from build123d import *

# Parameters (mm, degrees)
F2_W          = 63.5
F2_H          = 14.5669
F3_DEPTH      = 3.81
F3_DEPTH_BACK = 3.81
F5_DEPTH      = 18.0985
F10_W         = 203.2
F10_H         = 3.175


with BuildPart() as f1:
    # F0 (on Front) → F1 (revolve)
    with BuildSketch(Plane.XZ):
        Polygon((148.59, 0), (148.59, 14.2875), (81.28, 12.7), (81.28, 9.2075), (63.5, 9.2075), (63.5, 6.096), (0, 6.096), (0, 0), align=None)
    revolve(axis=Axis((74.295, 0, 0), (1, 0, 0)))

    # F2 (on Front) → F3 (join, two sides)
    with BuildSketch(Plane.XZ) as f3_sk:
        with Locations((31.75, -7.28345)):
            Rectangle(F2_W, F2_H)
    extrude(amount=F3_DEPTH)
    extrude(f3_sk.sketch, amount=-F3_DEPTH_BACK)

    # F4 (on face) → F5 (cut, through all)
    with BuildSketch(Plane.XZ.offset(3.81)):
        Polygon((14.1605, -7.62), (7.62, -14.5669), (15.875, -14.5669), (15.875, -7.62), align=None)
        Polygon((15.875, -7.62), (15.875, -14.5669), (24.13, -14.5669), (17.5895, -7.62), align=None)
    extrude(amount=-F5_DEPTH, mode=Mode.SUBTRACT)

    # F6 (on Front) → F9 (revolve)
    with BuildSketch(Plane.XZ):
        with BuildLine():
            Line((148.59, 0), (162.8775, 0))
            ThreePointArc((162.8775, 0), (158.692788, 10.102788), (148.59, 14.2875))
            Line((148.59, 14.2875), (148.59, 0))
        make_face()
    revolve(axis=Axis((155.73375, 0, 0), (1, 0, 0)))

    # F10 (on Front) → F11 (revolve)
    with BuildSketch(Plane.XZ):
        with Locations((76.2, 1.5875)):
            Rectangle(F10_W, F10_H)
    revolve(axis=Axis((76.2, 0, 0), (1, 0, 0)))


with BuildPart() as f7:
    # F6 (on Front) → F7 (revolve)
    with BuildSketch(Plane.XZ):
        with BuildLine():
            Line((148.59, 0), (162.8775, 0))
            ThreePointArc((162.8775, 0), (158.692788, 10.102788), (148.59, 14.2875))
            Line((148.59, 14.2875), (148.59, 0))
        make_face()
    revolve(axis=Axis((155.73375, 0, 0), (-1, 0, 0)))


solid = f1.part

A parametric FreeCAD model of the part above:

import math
import FreeCAD as App
import Part
import Sketcher

V = App.Vector
Q = App.Units.Quantity

doc = App.newDocument("Part")
body = doc.addObject("PartDesign::Body", "Body")

# Sketch on XZ plane
sketch1 = body.newObject("Sketcher::SketchObject", "Sketch")
sketch1.AttachmentSupport = (doc.getObject("XZ_Plane"), [""])
sketch1.MapMode = "FlatFace"
sketch1.addGeometry([
    Part.LineSegment(V(148.59, 0, 0), V(148.59, 14.2875, 0)),  # 0
    Part.LineSegment(V(148.59, 14.2875, 0), V(81.28, 12.7, 0)),  # 1
    Part.LineSegment(V(81.28, 12.7, 0), V(81.28, 9.2075, 0)),  # 2
    Part.LineSegment(V(81.28, 9.2075, 0), V(63.5, 9.2075, 0)),  # 3
    Part.LineSegment(V(63.5, 9.2075, 0), V(63.5, 6.096, 0)),  # 4
    Part.LineSegment(V(63.5, 6.096, 0), V(0, 6.096, 0)),  # 5
    Part.LineSegment(V(0, 6.096, 0), V(0, 0, 0)),  # 6
    Part.LineSegment(V(0, 0, 0), V(148.59, 0, 0)),  # 7
], False)
sketch1.addConstraint([
    Sketcher.Constraint("Coincident", 0, 2, 1, 1),
    Sketcher.Constraint("Coincident", 1, 2, 2, 1),
    Sketcher.Constraint("Coincident", 2, 2, 3, 1),
    Sketcher.Constraint("Coincident", 3, 2, 4, 1),
    Sketcher.Constraint("Coincident", 4, 2, 5, 1),
    Sketcher.Constraint("Coincident", 5, 2, 6, 1),
    Sketcher.Constraint("Coincident", 6, 2, 7, 1),
    Sketcher.Constraint("Coincident", 7, 2, 0, 1),
    Sketcher.Constraint("Vertical", 0),
    Sketcher.Constraint("Vertical", 2),
    Sketcher.Constraint("Horizontal", 3),
    Sketcher.Constraint("Vertical", 4),
    Sketcher.Constraint("Horizontal", 5),
    Sketcher.Constraint("Vertical", 6),
    Sketcher.Constraint("Horizontal", 7),
    Sketcher.Constraint("Coincident", 6, 2, -1, 1),
    Sketcher.Constraint("DistanceX", 3, 2, 3, 1, Q("0.7 in")),
    Sketcher.Constraint("DistanceX", 5, 2, 5, 1, Q("2.5 in")),
    Sketcher.Constraint("DistanceX", 7, 1, 7, 2, Q("5.85 in")),
    Sketcher.Constraint("DistanceY", 6, 2, 6, 1, Q("0.24 in")),
    Sketcher.Constraint("DistanceY", -1, 1, 1, 2, Q("0.5 in")),
    Sketcher.Constraint("DistanceY", 2, 2, 0, 2, Q("0.2 in")),
    Sketcher.Constraint("DistanceY", 0, 1, 0, 2, Q("0.5625 in")),
])
revolution = body.newObject("PartDesign::Revolution", "Revolution")
revolution.Profile = sketch1
revolution.ReferenceAxis = (sketch1, ["H_Axis"])
revolution.Angle = 360

# Sketch on XZ plane
sketch2 = body.newObject("Sketcher::SketchObject", "Sketch001")
sketch2.AttachmentSupport = (doc.getObject("XZ_Plane"), [""])
sketch2.MapMode = "FlatFace"
sketch2.addGeometry([
    Part.LineSegment(V(0, 0, 0), V(0, -14.5669, 0)),
    Part.LineSegment(V(0, -14.5669, 0), V(63.5, -14.5669, 0)),
    Part.LineSegment(V(63.5, -14.5669, 0), V(63.5, 0, 0)),
    Part.LineSegment(V(63.5, 0, 0), V(0, 0, 0)),
], False)
sketch2.addConstraint([
    Sketcher.Constraint("Coincident", 0, 2, 1, 1),
    Sketcher.Constraint("Coincident", 1, 2, 2, 1),
    Sketcher.Constraint("Coincident", 2, 2, 3, 1),
    Sketcher.Constraint("Coincident", 3, 2, 0, 1),
    Sketcher.Constraint("Vertical", 0),
    Sketcher.Constraint("Horizontal", 1),
    Sketcher.Constraint("Vertical", 2),
    Sketcher.Constraint("Horizontal", 3),
    Sketcher.Constraint("Coincident", 3, 2, -1, 1),
    Sketcher.Constraint("DistanceX", 1, 1, 1, 2, Q("2.5 in")),
    Sketcher.Constraint("DistanceY", 0, 2, 0, 1, Q("0.5735 in")),
])
pad1 = body.newObject("PartDesign::Pad", "Pad")
pad1.Profile = sketch2
pad1.Type = "TwoLengths"
pad1.Length = Q("0.15 in")
pad1.Length2 = Q("0.15 in")

# Sketch on XZ plane
sketch3 = body.newObject("Sketcher::SketchObject", "Sketch002")
sketch3.AttachmentSupport = (doc.getObject("XZ_Plane"), [""])
sketch3.MapMode = "FlatFace"
sketch3.AttachmentOffset = App.Placement(V(0, 0, 0.15 * 25.4), App.Rotation())
sketch3.addGeometry([
    Part.LineSegment(V(14.1605, -7.62, 0), V(7.62, -14.5669, 0)),
    Part.LineSegment(V(7.62, -14.5669, 0), V(24.13, -14.5669, 0)),
    Part.LineSegment(V(24.13, -14.5669, 0), V(17.5895, -7.62, 0)),
    Part.LineSegment(V(17.5895, -7.62, 0), V(14.1605, -7.62, 0)),
], False)
sketch3.addConstraint([
    Sketcher.Constraint("Coincident", 0, 2, 1, 1),
    Sketcher.Constraint("Coincident", 1, 2, 2, 1),
    Sketcher.Constraint("Coincident", 2, 2, 3, 1),
    Sketcher.Constraint("Coincident", 3, 2, 0, 1),
    Sketcher.Constraint("Horizontal", 1),
    Sketcher.Constraint("Horizontal", 3),
    Sketcher.Constraint("Equal", 0, 2),
    Sketcher.Constraint("DistanceX", 1, 1, 1, 2, Q("0.65 in")),
    Sketcher.Constraint("DistanceX", -1, 1, 0, 2, Q("0.3 in")),
    Sketcher.Constraint("DistanceY", 2, 2, -1, 1, Q("0.3 in")),
    Sketcher.Constraint("DistanceX", 3, 2, 3, 1, Q("0.135 in")),
    Sketcher.Constraint("DistanceY", 0, 2, -1, 1, Q("0.5735 in")),
])
pocket1 = body.newObject("PartDesign::Pocket", "Pocket")
pocket1.Profile = sketch3
pocket1.Type = "ThroughAll"

# Sketch on XZ plane
sketch4 = body.newObject("Sketcher::SketchObject", "Sketch003")
sketch4.AttachmentSupport = (doc.getObject("XZ_Plane"), [""])
sketch4.MapMode = "FlatFace"
sketch4.addGeometry([
    Part.LineSegment(V(148.59, 0, 0), V(162.8775, 0, 0)),
    Part.ArcOfCircle(Part.Circle(V(148.59, 0, 0), V(0, 0, 1), 14.2875), math.radians(0.000002), math.radians(89.999998)),
    Part.LineSegment(V(148.59, 14.2875, 0), V(148.59, 0, 0)),
], False)
sketch4.addConstraint([
    Sketcher.Constraint("Coincident", 0, 2, 1, 1),
    Sketcher.Constraint("Coincident", 1, 2, 2, 1),
    Sketcher.Constraint("Coincident", 2, 2, 0, 1),
    Sketcher.Constraint("Horizontal", 0),
    Sketcher.Constraint("Vertical", 2),
    Sketcher.Constraint("Coincident", 2, 2, 1, 3),
    Sketcher.Constraint("PointOnObject", 1, 3, -1),
    Sketcher.Constraint("Radius", 1, Q("0.5625 in")),
    Sketcher.Constraint("DistanceX", -1, 1, 1, 3, Q("5.85 in")),
])
revolution2 = body.newObject("PartDesign::Revolution", "Revolution001")
revolution2.Profile = sketch4
revolution2.ReferenceAxis = (sketch4, ["H_Axis"])
revolution2.Angle = 360

# Sketch on XZ plane
sketch5 = body.newObject("Sketcher::SketchObject", "Sketch004")
sketch5.AttachmentSupport = (doc.getObject("XZ_Plane"), [""])
sketch5.MapMode = "FlatFace"
sketch5.addGeometry([
    Part.LineSegment(V(-25.4, 3.175, 0), V(-25.4, 0, 0)),
    Part.LineSegment(V(-25.4, 0, 0), V(177.8, 0, 0)),
    Part.LineSegment(V(177.8, 0, 0), V(177.8, 3.175, 0)),
    Part.LineSegment(V(177.8, 3.175, 0), V(-25.4, 3.175, 0)),
], False)
sketch5.addConstraint([
    Sketcher.Constraint("Coincident", 0, 2, 1, 1),
    Sketcher.Constraint("Coincident", 1, 2, 2, 1),
    Sketcher.Constraint("Coincident", 2, 2, 3, 1),
    Sketcher.Constraint("Coincident", 3, 2, 0, 1),
    Sketcher.Constraint("Vertical", 0),
    Sketcher.Constraint("Horizontal", 1),
    Sketcher.Constraint("Vertical", 2),
    Sketcher.Constraint("Horizontal", 3),
    Sketcher.Constraint("PointOnObject", 0, 2, -1),
    Sketcher.Constraint("DistanceX", 1, 1, 1, 2, Q("8 in")),
    Sketcher.Constraint("DistanceX", 0, 2, -1, 1, Q("1 in")),
    Sketcher.Constraint("DistanceY", 0, 2, 0, 1, Q("0.125 in")),
])
revolution3 = body.newObject("PartDesign::Revolution", "Revolution002")
revolution3.Profile = sketch5
revolution3.ReferenceAxis = (sketch5, ["H_Axis"])
revolution3.Angle = 360
body2 = doc.addObject("PartDesign::Body", "Body001")

# Sketch on XZ plane
sketch6 = body2.newObject("Sketcher::SketchObject", "Sketch005")
sketch6.AttachmentSupport = (doc.getObject("XZ_Plane001"), [""])
sketch6.MapMode = "FlatFace"
sketch6.addGeometry([
    Part.LineSegment(V(148.59, 0, 0), V(162.8775, 0, 0)),
    Part.ArcOfCircle(Part.Circle(V(148.59, 0, 0), V(0, 0, 1), 14.2875), math.radians(0.000002), math.radians(89.999998)),
    Part.LineSegment(V(148.59, 14.2875, 0), V(148.59, 0, 0)),
], False)
sketch6.addConstraint([
    Sketcher.Constraint("Coincident", 0, 2, 1, 1),
    Sketcher.Constraint("Coincident", 1, 2, 2, 1),
    Sketcher.Constraint("Coincident", 2, 2, 0, 1),
    Sketcher.Constraint("Horizontal", 0),
    Sketcher.Constraint("Vertical", 2),
    Sketcher.Constraint("Coincident", 2, 2, 1, 3),
    Sketcher.Constraint("PointOnObject", 1, 3, -1),
    Sketcher.Constraint("Radius", 1, Q("0.5625 in")),
    Sketcher.Constraint("DistanceX", -1, 1, 1, 3, Q("5.85 in")),
])
revolution4 = body2.newObject("PartDesign::Revolution", "Revolution003")
revolution4.Profile = sketch6
revolution4.ReferenceAxis = (sketch6, ["H_Axis"])
revolution4.Angle = 360
body2.Visibility = False

doc.recompute()
